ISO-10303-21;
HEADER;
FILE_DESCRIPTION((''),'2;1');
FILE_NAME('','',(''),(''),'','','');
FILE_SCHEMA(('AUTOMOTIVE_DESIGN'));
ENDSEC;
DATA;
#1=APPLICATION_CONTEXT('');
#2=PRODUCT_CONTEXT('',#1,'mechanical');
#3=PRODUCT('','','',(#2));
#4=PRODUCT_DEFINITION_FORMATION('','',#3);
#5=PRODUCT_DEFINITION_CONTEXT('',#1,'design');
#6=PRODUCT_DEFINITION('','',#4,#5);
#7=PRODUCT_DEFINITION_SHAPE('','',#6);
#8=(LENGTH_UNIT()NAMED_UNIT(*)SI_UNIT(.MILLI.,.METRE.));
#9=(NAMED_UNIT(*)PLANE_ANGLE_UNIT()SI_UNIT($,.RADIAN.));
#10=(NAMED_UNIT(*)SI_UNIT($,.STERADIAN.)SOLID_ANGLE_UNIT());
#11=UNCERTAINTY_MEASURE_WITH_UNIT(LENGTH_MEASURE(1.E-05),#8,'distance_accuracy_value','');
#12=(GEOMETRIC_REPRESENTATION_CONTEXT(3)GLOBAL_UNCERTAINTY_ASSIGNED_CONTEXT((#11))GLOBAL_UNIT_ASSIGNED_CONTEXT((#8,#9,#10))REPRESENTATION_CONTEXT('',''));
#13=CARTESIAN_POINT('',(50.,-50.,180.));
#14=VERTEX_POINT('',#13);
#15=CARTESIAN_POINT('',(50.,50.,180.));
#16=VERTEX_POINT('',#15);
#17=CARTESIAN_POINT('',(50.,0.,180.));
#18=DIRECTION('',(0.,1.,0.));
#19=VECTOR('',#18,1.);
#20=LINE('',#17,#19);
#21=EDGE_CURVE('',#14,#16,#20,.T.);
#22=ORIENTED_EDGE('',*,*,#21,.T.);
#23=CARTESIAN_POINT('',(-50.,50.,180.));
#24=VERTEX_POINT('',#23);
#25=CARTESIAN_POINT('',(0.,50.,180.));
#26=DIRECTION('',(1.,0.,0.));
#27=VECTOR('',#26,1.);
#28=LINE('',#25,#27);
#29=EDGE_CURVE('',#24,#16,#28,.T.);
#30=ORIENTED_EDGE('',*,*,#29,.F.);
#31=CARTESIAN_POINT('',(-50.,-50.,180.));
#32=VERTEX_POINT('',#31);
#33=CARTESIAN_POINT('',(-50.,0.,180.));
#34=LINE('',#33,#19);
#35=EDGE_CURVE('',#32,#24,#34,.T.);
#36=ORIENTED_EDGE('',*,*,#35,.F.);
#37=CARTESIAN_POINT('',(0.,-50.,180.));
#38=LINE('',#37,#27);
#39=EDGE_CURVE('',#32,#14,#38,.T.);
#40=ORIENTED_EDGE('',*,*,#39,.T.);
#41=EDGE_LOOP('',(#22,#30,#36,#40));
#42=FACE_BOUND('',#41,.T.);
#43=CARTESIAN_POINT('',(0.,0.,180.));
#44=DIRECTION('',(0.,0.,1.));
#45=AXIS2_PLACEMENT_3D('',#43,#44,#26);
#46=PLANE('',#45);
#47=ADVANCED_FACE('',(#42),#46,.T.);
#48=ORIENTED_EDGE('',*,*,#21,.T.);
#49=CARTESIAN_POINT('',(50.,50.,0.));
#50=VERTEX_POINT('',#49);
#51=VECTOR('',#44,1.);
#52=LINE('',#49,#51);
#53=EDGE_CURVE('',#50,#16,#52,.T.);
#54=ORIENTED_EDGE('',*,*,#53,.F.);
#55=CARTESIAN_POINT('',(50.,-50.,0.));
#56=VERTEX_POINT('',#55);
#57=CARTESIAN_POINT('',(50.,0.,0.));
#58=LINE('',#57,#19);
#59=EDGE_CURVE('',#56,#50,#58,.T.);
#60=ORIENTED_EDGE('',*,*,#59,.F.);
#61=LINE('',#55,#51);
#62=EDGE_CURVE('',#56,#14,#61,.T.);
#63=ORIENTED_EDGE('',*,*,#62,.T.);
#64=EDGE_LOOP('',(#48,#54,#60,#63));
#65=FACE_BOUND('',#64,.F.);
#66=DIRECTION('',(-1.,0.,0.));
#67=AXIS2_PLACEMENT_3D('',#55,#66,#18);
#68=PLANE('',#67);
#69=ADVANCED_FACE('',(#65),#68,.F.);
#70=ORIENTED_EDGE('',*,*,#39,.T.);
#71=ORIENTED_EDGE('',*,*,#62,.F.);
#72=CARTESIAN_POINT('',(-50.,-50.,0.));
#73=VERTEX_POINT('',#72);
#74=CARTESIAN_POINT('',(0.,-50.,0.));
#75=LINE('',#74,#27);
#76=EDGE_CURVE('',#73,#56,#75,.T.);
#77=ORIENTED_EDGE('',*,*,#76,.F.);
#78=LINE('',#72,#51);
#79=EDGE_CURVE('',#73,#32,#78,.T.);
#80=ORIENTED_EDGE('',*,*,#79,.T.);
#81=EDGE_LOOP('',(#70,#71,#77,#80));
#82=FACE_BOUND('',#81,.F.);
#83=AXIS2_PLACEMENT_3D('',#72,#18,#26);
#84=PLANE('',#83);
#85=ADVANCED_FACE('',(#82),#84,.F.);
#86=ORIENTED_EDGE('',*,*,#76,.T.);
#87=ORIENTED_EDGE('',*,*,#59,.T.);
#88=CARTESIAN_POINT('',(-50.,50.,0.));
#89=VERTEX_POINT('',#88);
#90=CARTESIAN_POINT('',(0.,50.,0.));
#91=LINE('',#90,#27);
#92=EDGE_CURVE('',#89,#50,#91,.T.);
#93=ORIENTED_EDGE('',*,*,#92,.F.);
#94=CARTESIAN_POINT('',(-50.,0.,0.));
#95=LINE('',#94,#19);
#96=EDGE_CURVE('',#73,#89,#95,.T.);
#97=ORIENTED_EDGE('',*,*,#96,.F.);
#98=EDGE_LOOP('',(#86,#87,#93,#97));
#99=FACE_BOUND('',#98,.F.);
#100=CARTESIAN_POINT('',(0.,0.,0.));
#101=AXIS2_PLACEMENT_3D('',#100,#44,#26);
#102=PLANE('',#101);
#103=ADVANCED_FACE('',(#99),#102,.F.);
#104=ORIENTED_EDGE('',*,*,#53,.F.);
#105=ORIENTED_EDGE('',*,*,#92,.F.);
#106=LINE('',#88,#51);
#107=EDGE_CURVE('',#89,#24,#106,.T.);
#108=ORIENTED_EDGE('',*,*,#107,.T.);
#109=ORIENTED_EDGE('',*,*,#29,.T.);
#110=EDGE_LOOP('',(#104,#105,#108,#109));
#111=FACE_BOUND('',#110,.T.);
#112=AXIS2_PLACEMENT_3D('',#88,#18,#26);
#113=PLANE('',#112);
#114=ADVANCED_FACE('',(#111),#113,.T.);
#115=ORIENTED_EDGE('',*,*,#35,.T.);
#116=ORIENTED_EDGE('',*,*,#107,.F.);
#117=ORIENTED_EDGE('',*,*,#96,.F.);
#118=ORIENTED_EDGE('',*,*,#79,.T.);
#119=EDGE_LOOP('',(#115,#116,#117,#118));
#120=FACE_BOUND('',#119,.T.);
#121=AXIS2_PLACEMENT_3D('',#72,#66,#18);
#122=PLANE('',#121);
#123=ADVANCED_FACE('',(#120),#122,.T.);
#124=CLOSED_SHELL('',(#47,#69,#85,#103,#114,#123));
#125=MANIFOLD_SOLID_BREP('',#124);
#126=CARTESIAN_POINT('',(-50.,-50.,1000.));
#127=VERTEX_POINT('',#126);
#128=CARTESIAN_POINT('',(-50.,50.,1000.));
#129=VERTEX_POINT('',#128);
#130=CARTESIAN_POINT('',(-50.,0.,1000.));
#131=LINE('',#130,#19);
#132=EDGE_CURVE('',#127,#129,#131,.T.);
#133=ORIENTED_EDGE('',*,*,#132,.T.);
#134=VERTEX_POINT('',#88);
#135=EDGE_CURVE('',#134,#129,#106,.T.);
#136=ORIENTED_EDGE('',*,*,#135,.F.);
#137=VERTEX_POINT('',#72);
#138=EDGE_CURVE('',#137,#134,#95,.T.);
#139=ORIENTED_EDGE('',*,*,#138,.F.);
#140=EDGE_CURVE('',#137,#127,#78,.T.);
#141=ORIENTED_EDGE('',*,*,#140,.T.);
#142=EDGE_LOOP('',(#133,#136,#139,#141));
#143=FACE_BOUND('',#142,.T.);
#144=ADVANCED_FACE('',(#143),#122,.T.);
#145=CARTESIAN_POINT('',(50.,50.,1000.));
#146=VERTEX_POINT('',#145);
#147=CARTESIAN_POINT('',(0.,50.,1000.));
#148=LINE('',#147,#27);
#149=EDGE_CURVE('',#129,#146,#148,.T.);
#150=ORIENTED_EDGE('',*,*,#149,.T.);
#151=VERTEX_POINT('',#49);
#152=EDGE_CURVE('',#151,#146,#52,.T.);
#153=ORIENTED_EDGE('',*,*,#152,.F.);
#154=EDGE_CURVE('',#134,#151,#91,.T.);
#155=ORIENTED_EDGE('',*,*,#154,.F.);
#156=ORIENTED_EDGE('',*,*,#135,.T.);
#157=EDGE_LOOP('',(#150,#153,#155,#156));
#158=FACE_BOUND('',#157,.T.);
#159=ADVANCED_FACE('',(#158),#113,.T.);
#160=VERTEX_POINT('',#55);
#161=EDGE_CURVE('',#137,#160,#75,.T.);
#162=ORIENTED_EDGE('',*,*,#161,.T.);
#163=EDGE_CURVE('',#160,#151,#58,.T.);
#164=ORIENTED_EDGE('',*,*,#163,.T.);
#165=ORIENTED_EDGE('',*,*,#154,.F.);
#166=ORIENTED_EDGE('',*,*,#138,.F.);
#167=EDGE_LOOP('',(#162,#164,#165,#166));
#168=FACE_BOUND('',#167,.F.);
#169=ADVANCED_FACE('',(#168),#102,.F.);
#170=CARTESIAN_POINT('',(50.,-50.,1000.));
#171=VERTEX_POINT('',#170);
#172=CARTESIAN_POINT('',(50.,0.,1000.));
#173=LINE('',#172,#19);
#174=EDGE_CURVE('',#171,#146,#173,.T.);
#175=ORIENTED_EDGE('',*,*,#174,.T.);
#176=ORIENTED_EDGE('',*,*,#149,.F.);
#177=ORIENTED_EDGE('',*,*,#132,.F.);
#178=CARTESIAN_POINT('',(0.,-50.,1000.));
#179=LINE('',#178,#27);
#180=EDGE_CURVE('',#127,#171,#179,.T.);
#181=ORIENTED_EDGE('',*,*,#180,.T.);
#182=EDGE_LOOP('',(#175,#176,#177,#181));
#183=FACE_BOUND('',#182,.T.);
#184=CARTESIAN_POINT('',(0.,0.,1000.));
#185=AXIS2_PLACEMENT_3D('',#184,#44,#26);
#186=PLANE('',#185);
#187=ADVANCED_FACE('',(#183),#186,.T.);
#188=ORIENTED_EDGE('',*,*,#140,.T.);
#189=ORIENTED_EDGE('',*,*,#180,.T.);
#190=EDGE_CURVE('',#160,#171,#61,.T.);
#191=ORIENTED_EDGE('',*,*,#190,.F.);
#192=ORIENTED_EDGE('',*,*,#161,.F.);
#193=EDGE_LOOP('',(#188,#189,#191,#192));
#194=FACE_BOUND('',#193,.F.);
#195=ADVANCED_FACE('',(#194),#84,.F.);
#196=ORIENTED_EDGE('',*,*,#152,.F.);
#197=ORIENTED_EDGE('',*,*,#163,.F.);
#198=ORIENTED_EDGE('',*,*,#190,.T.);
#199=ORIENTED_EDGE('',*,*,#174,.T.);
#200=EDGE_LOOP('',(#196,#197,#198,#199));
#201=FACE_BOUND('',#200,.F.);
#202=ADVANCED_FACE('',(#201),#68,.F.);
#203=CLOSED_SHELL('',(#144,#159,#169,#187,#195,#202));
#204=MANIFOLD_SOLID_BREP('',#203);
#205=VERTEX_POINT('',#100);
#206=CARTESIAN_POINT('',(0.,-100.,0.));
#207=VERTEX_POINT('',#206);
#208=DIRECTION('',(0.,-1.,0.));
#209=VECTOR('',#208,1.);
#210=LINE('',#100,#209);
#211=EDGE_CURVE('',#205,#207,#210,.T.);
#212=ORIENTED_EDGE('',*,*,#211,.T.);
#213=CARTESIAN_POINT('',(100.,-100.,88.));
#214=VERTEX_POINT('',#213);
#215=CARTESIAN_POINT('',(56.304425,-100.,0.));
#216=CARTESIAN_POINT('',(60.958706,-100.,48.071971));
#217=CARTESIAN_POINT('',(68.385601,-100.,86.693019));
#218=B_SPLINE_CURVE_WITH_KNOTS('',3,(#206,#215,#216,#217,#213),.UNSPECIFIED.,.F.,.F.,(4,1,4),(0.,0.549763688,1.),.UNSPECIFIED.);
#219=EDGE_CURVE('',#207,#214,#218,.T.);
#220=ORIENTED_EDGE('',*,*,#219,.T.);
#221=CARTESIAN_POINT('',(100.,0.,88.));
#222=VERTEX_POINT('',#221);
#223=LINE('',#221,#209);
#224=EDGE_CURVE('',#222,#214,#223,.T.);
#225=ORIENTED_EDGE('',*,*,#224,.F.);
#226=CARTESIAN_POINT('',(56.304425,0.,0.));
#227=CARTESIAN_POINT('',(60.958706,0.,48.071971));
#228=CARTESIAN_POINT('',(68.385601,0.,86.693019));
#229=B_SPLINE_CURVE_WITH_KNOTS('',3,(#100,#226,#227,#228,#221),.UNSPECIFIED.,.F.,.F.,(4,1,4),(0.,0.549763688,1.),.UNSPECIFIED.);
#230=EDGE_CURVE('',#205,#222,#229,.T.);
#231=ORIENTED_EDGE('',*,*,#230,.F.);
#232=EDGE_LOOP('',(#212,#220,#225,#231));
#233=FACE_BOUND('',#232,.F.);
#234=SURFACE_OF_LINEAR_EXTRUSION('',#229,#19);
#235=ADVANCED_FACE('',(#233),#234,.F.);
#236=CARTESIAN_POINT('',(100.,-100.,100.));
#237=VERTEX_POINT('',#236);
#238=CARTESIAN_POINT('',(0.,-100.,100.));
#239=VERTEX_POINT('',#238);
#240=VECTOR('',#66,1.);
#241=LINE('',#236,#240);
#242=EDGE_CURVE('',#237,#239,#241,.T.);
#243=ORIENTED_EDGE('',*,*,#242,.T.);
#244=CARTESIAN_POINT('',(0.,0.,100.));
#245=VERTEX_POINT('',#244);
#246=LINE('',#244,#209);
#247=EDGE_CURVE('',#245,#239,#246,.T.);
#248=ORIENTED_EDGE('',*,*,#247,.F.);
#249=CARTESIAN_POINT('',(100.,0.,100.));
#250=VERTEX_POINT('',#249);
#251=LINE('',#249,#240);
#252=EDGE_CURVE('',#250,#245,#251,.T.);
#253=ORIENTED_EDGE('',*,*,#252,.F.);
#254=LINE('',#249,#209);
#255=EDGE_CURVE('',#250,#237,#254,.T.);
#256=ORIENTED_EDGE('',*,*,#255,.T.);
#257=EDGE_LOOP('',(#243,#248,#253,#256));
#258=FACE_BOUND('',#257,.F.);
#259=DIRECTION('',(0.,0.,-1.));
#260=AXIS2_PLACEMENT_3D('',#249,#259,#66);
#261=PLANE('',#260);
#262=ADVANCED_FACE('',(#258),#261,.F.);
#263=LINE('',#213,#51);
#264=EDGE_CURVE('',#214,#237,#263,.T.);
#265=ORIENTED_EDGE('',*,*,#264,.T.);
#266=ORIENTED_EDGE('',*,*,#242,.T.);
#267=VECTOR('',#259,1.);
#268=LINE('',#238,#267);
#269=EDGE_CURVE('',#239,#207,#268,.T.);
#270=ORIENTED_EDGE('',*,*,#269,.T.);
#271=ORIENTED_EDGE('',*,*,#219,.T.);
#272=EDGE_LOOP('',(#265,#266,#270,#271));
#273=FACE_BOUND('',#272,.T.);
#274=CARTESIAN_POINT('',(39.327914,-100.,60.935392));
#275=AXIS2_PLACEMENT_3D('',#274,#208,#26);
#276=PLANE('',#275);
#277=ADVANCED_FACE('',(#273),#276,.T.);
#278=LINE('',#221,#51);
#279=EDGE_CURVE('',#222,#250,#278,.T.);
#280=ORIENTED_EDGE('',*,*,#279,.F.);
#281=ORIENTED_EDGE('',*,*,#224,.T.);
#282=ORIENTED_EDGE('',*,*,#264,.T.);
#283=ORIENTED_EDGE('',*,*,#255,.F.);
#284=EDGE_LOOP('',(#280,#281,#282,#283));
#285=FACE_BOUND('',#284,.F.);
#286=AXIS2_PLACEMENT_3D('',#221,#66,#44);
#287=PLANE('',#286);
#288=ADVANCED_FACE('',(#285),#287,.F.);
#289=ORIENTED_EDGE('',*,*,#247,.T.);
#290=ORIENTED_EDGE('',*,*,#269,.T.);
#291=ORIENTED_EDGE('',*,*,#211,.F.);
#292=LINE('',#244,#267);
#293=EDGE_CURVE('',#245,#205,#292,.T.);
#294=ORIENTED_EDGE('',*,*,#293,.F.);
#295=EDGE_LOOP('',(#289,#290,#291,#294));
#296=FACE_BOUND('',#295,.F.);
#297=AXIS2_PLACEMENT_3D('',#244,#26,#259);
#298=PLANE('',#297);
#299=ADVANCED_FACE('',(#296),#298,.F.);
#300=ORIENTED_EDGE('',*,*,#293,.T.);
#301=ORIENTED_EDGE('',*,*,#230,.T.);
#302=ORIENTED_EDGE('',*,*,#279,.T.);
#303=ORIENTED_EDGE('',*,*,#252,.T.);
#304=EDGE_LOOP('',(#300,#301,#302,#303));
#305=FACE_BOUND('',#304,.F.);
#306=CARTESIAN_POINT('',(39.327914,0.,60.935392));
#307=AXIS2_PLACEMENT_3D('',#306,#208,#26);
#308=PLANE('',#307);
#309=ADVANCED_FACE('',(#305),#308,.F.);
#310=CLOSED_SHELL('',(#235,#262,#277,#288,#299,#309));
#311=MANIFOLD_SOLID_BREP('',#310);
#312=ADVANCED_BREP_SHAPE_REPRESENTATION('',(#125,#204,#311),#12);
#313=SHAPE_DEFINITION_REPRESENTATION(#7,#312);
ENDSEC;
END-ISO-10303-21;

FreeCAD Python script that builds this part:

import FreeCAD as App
import Part
import Sketcher

V = App.Vector

doc = App.newDocument("Part")
params = doc.addObject("Spreadsheet::Sheet", "Params")
for row, (alias, value) in enumerate([
    ("sketch1_width", "100 mm"),
    ("pad1_length", "1000 mm"),
    ("sketch2_width", "100 mm"),
    ("pad2_length", "180 mm"),
    ("sketch3_height", "100 mm"),
    ("pad3_length", "100 mm"),
], start=1):
    params.set(f"A{row}", alias)
    params.set(f"B{row}", "=" + value)
    params.setAlias(f"B{row}", alias)

body = doc.addObject("PartDesign::Body", "Body")

sketch1 = body.newObject("Sketcher::SketchObject", "Sketch")
sketch1.AttachmentSupport = (doc.getObject("XY_Plane"), [""])
sketch1.MapMode = "FlatFace"
sketch1.addGeometry([
    Part.LineSegment(V(-50, 50, 0), V(-50, -50, 0)),
    Part.LineSegment(V(-50, -50, 0), V(50, -50, 0)),
    Part.LineSegment(V(50, -50, 0), V(50, 50, 0)),
    Part.LineSegment(V(50, 50, 0), V(-50, 50, 0)),
], False)
sketch1.addConstraint([
    Sketcher.Constraint("Coincident", 0, 2, 1, 1),
    Sketcher.Constraint("Coincident", 1, 2, 2, 1),
    Sketcher.Constraint("Coincident", 2, 2, 3, 1),
    Sketcher.Constraint("Coincident", 3, 2, 0, 1),
    Sketcher.Constraint("Vertical", 0),
    Sketcher.Constraint("Horizontal", 1),
    Sketcher.Constraint("Vertical", 2),
    Sketcher.Constraint("Horizontal", 3),
    Sketcher.Constraint("Symmetric", 0, 2, 2, 2, -1, 1),
    Sketcher.Constraint("Equal", 3, 0),
    Sketcher.Constraint("DistanceX", 1, 1, 1, 2, 100.0),
])
sketch1.setExpression("Constraints[10]", "Params.sketch1_width")
pad1 = body.newObject("PartDesign::Pad", "Pad")
pad1.Profile = sketch1
pad1.setExpression("Length", "Params.pad1_length")
body2 = doc.addObject("PartDesign::Body", "Body001")

sketch2 = body2.newObject("Sketcher::SketchObject", "Sketch001")
sketch2.AttachmentSupport = (doc.getObject("XY_Plane001"), [""])
sketch2.MapMode = "FlatFace"
sketch2.addGeometry([
    Part.LineSegment(V(-50, 50, 0), V(-50, -50, 0)),
    Part.LineSegment(V(-50, -50, 0), V(50, -50, 0)),
    Part.LineSegment(V(50, -50, 0), V(50, 50, 0)),
    Part.LineSegment(V(50, 50, 0), V(-50, 50, 0)),
], False)
sketch2.addConstraint([
    Sketcher.Constraint("Coincident", 0, 2, 1, 1),
    Sketcher.Constraint("Coincident", 1, 2, 2, 1),
    Sketcher.Constraint("Coincident", 2, 2, 3, 1),
    Sketcher.Constraint("Coincident", 3, 2, 0, 1),
    Sketcher.Constraint("Vertical", 0),
    Sketcher.Constraint("Horizontal", 1),
    Sketcher.Constraint("Vertical", 2),
    Sketcher.Constraint("Horizontal", 3),
    Sketcher.Constraint("Symmetric", 0, 2, 2, 2, -1, 1),
    Sketcher.Constraint("Equal", 3, 0),
    Sketcher.Constraint("DistanceX", 1, 1, 1, 2, 100.0),
])
sketch2.setExpression("Constraints[10]", "Params.sketch2_width")
pad2 = body2.newObject("PartDesign::Pad", "Pad001")
pad2.Profile = sketch2
pad2.setExpression("Length", "Params.pad2_length")
body3 = doc.addObject("PartDesign::Body", "Body002")

sketch3 = body3.newObject("Sketcher::SketchObject", "Sketch002")
sketch3.AttachmentSupport = (doc.getObject("XZ_Plane002"), [""])
sketch3.MapMode = "FlatFace"
sketch3.addGeometry([
    Part.LineSegment(V(0, 100, 0), V(0, 0, 0)),
    Part.BSplineCurve([V(0, 0, 0), V(56.304425, 0, 0), V(60.958706, 48.071971, 0), V(68.385601, 86.693019, 0), V(100, 88, 0)], [4, 1, 4], [0, 0.549763688, 1], False, 3, [1, 1, 1, 1, 1], False),
    Part.LineSegment(V(100, 88, 0), V(100, 100, 0)),
    Part.LineSegment(V(100, 100, 0), V(0, 100, 0)),
], False)
sketch3.addConstraint([
    Sketcher.Constraint("Block", 1),
    Sketcher.Constraint("Coincident", 0, 2, 1, 1),
    Sketcher.Constraint("Coincident", 1, 2, 2, 1),
    Sketcher.Constraint("Coincident", 2, 2, 3, 1),
    Sketcher.Constraint("Coincident", 3, 2, 0, 1),
    Sketcher.Constraint("Vertical", 0),
    Sketcher.Constraint("Vertical", 2),
    Sketcher.Constraint("Horizontal", 3),
    Sketcher.Constraint("DistanceY", 0, 2, 0, 1, 100.0),
])
sketch3.setExpression("Constraints[8]", "Params.sketch3_height")
pad3 = body3.newObject("PartDesign::Pad", "Pad002")
pad3.Profile = sketch3
pad3.setExpression("Length", "Params.pad3_length")

doc.recompute()
